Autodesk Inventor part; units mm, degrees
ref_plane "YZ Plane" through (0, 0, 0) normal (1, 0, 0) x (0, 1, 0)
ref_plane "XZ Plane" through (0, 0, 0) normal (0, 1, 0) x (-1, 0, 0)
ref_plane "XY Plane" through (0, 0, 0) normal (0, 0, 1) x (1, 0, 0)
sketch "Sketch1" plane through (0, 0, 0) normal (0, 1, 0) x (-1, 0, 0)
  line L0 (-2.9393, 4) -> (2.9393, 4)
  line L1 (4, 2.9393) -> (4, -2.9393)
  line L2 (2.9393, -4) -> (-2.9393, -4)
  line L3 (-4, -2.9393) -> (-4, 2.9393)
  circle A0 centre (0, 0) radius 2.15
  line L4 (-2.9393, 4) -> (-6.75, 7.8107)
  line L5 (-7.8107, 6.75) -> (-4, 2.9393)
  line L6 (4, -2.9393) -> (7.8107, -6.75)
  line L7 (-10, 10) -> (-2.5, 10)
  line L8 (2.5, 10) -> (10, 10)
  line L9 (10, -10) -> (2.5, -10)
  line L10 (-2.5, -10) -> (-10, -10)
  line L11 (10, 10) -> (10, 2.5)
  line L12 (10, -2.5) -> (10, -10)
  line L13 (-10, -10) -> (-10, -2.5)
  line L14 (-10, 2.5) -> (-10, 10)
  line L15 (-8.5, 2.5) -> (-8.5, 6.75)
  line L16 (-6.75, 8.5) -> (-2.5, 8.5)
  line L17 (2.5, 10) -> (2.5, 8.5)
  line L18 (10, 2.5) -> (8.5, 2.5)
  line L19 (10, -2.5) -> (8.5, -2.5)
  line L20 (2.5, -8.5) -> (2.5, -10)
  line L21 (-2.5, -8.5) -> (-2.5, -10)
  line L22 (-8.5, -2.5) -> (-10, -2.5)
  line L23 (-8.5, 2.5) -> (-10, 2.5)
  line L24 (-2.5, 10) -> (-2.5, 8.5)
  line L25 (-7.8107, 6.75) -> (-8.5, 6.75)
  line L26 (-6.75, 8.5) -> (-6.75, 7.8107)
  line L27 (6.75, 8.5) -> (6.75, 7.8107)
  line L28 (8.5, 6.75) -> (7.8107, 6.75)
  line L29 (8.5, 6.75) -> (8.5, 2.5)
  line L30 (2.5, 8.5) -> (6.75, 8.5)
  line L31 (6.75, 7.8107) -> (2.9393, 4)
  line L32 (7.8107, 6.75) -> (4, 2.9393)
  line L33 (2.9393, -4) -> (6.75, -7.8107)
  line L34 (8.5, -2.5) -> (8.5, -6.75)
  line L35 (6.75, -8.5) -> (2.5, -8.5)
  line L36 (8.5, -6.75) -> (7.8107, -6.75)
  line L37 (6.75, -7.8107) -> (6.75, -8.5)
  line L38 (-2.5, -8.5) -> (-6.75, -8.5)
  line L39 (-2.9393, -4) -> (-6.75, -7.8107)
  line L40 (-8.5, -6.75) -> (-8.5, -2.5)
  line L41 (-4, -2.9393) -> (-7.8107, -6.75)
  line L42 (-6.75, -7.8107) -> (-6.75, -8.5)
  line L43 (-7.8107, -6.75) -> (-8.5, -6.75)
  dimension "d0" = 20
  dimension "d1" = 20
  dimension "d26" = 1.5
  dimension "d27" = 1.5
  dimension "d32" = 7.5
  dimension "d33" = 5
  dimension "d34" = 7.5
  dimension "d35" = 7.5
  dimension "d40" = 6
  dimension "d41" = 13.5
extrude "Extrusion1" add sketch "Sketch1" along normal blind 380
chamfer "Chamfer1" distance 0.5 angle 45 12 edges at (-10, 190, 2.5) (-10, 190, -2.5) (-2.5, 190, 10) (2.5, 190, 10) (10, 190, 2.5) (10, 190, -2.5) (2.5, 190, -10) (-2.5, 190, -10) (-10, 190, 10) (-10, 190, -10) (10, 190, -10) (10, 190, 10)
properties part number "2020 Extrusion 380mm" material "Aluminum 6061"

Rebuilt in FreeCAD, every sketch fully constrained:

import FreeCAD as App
import Part
import Sketcher

V = App.Vector
Q = App.Units.Quantity


def edges_at(feature, points):
    """Names of the edges that pass closest to the given points."""
    edges = feature.Shape.Edges
    near = lambda p: min(range(len(edges)), key=lambda i: edges[i].distToShape(Part.Vertex(*p))[0])
    return sorted({f"Edge{near(p) + 1}" for p in points})

doc = App.newDocument("Part")
body = doc.addObject("PartDesign::Body", "Body")

# Sketch on XZ plane
sketch1 = body.newObject("Sketcher::SketchObject", "Sketch")
sketch1.AttachmentSupport = (doc.getObject("XZ_Plane"), [""])
sketch1.MapMode = "FlatFace"
sketch1.addGeometry(Part.LineSegment(V(-2.9, 4, 0), V(2.9, 4, 0)), False)
sketch1.addGeometry(Part.LineSegment(V(2.9, 4, 0), V(6.8, 7.8, 0)), False)
sketch1.addGeometry(Part.LineSegment(V(6.8, 7.8, 0), V(6.8, 8.5, 0)), False)
sketch1.addGeometry(Part.LineSegment(V(6.8, 8.5, 0), V(2.5, 8.5, 0)), False)
sketch1.addGeometry(Part.LineSegment(V(2.5, 8.5, 0), V(2.5, 10, 0)), False)
sketch1.addGeometry(Part.LineSegment(V(2.5, 10, 0), V(10, 10, 0)), False)
sketch1.addGeometry(Part.LineSegment(V(10, 10, 0), V(10, 2.5, 0)), False)
sketch1.addGeometry(Part.LineSegment(V(10, 2.5, 0), V(8.5, 2.5, 0)), False)
sketch1.addGeometry(Part.LineSegment(V(8.5, 2.5, 0), V(8.5, 6.8, 0)), False)
sketch1.addGeometry(Part.LineSegment(V(8.5, 6.8, 0), V(7.8, 6.8, 0)), False)
sketch1.addGeometry(Part.LineSegment(V(7.8, 6.8, 0), V(4, 2.9, 0)), False)
sketch1.addGeometry(Part.LineSegment(V(4, 2.9, 0), V(4, -2.9, 0)), False)
sketch1.addGeometry(Part.LineSegment(V(4, -2.9, 0), V(7.8, -6.8, 0)), False)
sketch1.addGeometry(Part.LineSegment(V(7.8, -6.8, 0), V(8.5, -6.8, 0)), False)
sketch1.addGeometry(Part.LineSegment(V(8.5, -6.8, 0), V(8.5, -2.5, 0)), False)
sketch1.addGeometry(Part.LineSegment(V(8.5, -2.5, 0), V(10, -2.5, 0)), False)
sketch1.addGeometry(Part.LineSegment(V(10, -2.5, 0), V(10, -10, 0)), False)
sketch1.addGeometry(Part.LineSegment(V(10, -10, 0), V(2.5, -10, 0)), False)
sketch1.addGeometry(Part.LineSegment(V(2.5, -10, 0), V(2.5, -8.5, 0)), False)
sketch1.addGeometry(Part.LineSegment(V(2.5, -8.5, 0), V(6.8, -8.5, 0)), False)
sketch1.addGeometry(Part.LineSegment(V(6.8, -8.5, 0), V(6.8, -7.8, 0)), False)
sketch1.addGeometry(Part.LineSegment(V(6.8, -7.8, 0), V(2.9, -4, 0)), False)
sketch1.addGeometry(Part.LineSegment(V(2.9, -4, 0), V(-2.9, -4, 0)), False)
sketch1.addGeometry(Part.LineSegment(V(-2.9, -4, 0), V(-6.8, -7.8, 0)), False)
sketch1.addGeometry(Part.LineSegment(V(-6.8, -7.8, 0), V(-6.8, -8.5, 0)), False)
sketch1.addGeometry(Part.LineSegment(V(-6.8, -8.5, 0), V(-2.5, -8.5, 0)), False)
sketch1.addGeometry(Part.LineSegment(V(-2.5, -8.5, 0), V(-2.5, -10, 0)), False)
sketch1.addGeometry(Part.LineSegment(V(-2.5, -10, 0), V(-10, -10, 0)), False)
sketch1.addGeometry(Part.LineSegment(V(-10, -10, 0), V(-10, -2.5, 0)), False)
sketch1.addGeometry(Part.LineSegment(V(-10, -2.5, 0), V(-8.5, -2.5, 0)), False)
sketch1.addGeometry(Part.LineSegment(V(-8.5, -2.5, 0), V(-8.5, -6.8, 0)), False)
sketch1.addGeometry(Part.LineSegment(V(-8.5, -6.8, 0), V(-7.8, -6.8, 0)), False)
sketch1.addGeometry(Part.LineSegment(V(-7.8, -6.8, 0), V(-4, -2.9, 0)), False)
sketch1.addGeometry(Part.LineSegment(V(-4, -2.9, 0), V(-4, 2.9, 0)), False)
sketch1.addGeometry(Part.LineSegment(V(-4, 2.9, 0), V(-7.8, 6.8, 0)), False)
sketch1.addGeometry(Part.LineSegment(V(-7.8, 6.8, 0), V(-8.5, 6.8, 0)), False)
sketch1.addGeometry(Part.LineSegment(V(-8.5, 6.8, 0), V(-8.5, 2.5, 0)), False)
sketch1.addGeometry(Part.LineSegment(V(-8.5, 2.5, 0), V(-10, 2.5, 0)), False)
sketch1.addGeometry(Part.LineSegment(V(-10, 2.5, 0), V(-10, 10, 0)), False)
sketch1.addGeometry(Part.LineSegment(V(-10, 10, 0), V(-2.5, 10, 0)), False)
sketch1.addGeometry(Part.LineSegment(V(-2.5, 10, 0), V(-2.5, 8.5, 0)), False)
sketch1.addGeometry(Part.LineSegment(V(-2.5, 8.5, 0), V(-6.8, 8.5, 0)), False)
sketch1.addGeometry(Part.LineSegment(V(-6.8, 8.5, 0), V(-6.8, 7.8, 0)), False)
sketch1.addGeometry(Part.LineSegment(V(-6.8, 7.8, 0), V(-2.9, 4, 0)), False)
sketch1.addGeometry(Part.Circle(V(0, 0, 0), V(0, 0, 1), 2.1), False)
sketch1.addConstraint(Sketcher.Constraint("Coincident", 0, 2, 1, 1))
sketch1.addConstraint(Sketcher.Constraint("Coincident", 1, 2, 2, 1))
sketch1.addConstraint(Sketcher.Constraint("Coincident", 2, 2, 3, 1))
sketch1.addConstraint(Sketcher.Constraint("Coincident", 3, 2, 4, 1))
sketch1.addConstraint(Sketcher.Constraint("Coincident", 4, 2, 5, 1))
sketch1.addConstraint(Sketcher.Constraint("Coincident", 5, 2, 6, 1))
sketch1.addConstraint(Sketcher.Constraint("Coincident", 6, 2, 7, 1))
sketch1.addConstraint(Sketcher.Constraint("Coincident", 7, 2, 8, 1))
sketch1.addConstraint(Sketcher.Constraint("Coincident", 8, 2, 9, 1))
sketch1.addConstraint(Sketcher.Constraint("Coincident", 9, 2, 10, 1))
sketch1.addConstraint(Sketcher.Constraint("Coincident", 10, 2, 11, 1))
sketch1.addConstraint(Sketcher.Constraint("Coincident", 11, 2, 12, 1))
sketch1.addConstraint(Sketcher.Constraint("Coincident", 12, 2, 13, 1))
sketch1.addConstraint(Sketcher.Constraint("Coincident", 13, 2, 14, 1))
sketch1.addConstraint(Sketcher.Constraint("Coincident", 14, 2, 15, 1))
sketch1.addConstraint(Sketcher.Constraint("Coincident", 15, 2, 16, 1))
sketch1.addConstraint(Sketcher.Constraint("Coincident", 16, 2, 17, 1))
sketch1.addConstraint(Sketcher.Constraint("Coincident", 17, 2, 18, 1))
sketch1.addConstraint(Sketcher.Constraint("Coincident", 18, 2, 19, 1))
sketch1.addConstraint(Sketcher.Constraint("Coincident", 19, 2, 20, 1))
sketch1.addConstraint(Sketcher.Constraint("Coincident", 20, 2, 21, 1))
sketch1.addConstraint(Sketcher.Constraint("Coincident", 21, 2, 22, 1))
sketch1.addConstraint(Sketcher.Constraint("Coincident", 22, 2, 23, 1))
sketch1.addConstraint(Sketcher.Constraint("Coincident", 23, 2, 24, 1))
sketch1.addConstraint(Sketcher.Constraint("Coincident", 24, 2, 25, 1))
sketch1.addConstraint(Sketcher.Constraint("Coincident", 25, 2, 26, 1))
sketch1.addConstraint(Sketcher.Constraint("Coincident", 26, 2, 27, 1))
sketch1.addConstraint(Sketcher.Constraint("Coincident", 27, 2, 28, 1))
sketch1.addConstraint(Sketcher.Constraint("Coincident", 28, 2, 29, 1))
sketch1.addConstraint(Sketcher.Constraint("Coincident", 29, 2, 30, 1))
sketch1.addConstraint(Sketcher.Constraint("Coincident", 30, 2, 31, 1))
sketch1.addConstraint(Sketcher.Constraint("Coincident", 31, 2, 32, 1))
sketch1.addConstraint(Sketcher.Constraint("Coincident", 32, 2, 33, 1))
sketch1.addConstraint(Sketcher.Constraint("Coincident", 33, 2, 34, 1))
sketch1.addConstraint(Sketcher.Constraint("Coincident", 34, 2, 35, 1))
sketch1.addConstraint(Sketcher.Constraint("Coincident", 35, 2, 36, 1))
sketch1.addConstraint(Sketcher.Constraint("Coincident", 36, 2, 37, 1))
sketch1.addConstraint(Sketcher.Constraint("Coincident", 37, 2, 38, 1))
sketch1.addConstraint(Sketcher.Constraint("Coincident", 38, 2, 39, 1))
sketch1.addConstraint(Sketcher.Constraint("Coincident", 39, 2, 40, 1))
sketch1.addConstraint(Sketcher.Constraint("Coincident", 40, 2, 41, 1))
sketch1.addConstraint(Sketcher.Constraint("Coincident", 41, 2, 42, 1))
sketch1.addConstraint(Sketcher.Constraint("Coincident", 42, 2, 43, 1))
sketch1.addConstraint(Sketcher.Constraint("Coincident", 43, 2, 0, 1))
sketch1.addConstraint(Sketcher.Constraint("Horizontal", 0))
sketch1.addConstraint(Sketcher.Constraint("Vertical", 2))
sketch1.addConstraint(Sketcher.Constraint("Horizontal", 3))
sketch1.addConstraint(Sketcher.Constraint("Vertical", 4))
sketch1.addConstraint(Sketcher.Constraint("Horizontal", 5))
sketch1.addConstraint(Sketcher.Constraint("Vertical", 6))
sketch1.addConstraint(Sketcher.Constraint("Horizontal", 7))
sketch1.addConstraint(Sketcher.Constraint("Vertical", 8))
sketch1.addConstraint(Sketcher.Constraint("Horizontal", 9))
sketch1.addConstraint(Sketcher.Constraint("Vertical", 11))
sketch1.addConstraint(Sketcher.Constraint("Horizontal", 13))
sketch1.addConstraint(Sketcher.Constraint("Vertical", 14))
sketch1.addConstraint(Sketcher.Constraint("Horizontal", 15))
sketch1.addConstraint(Sketcher.Constraint("Vertical", 16))
sketch1.addConstraint(Sketcher.Constraint("Horizontal", 17))
sketch1.addConstraint(Sketcher.Constraint("Vertical", 18))
sketch1.addConstraint(Sketcher.Constraint("Horizontal", 19))
sketch1.addConstraint(Sketcher.Constraint("Vertical", 20))
sketch1.addConstraint(Sketcher.Constraint("Horizontal", 22))
sketch1.addConstraint(Sketcher.Constraint("Vertical", 24))
sketch1.addConstraint(Sketcher.Constraint("Horizontal", 25))
sketch1.addConstraint(Sketcher.Constraint("Vertical", 26))
sketch1.addConstraint(Sketcher.Constraint("Horizontal", 27))
sketch1.addConstraint(Sketcher.Constraint("Vertical", 28))
sketch1.addConstraint(Sketcher.Constraint("Horizontal", 29))
sketch1.addConstraint(Sketcher.Constraint("Vertical", 30))
sketch1.addConstraint(Sketcher.Constraint("Horizontal", 31))
sketch1.addConstraint(Sketcher.Constraint("Vertical", 33))
sketch1.addConstraint(Sketcher.Constraint("Horizontal", 35))
sketch1.addConstraint(Sketcher.Constraint("Vertical", 36))
sketch1.addConstraint(Sketcher.Constraint("Horizontal", 37))
sketch1.addConstraint(Sketcher.Constraint("Vertical", 38))
sketch1.addConstraint(Sketcher.Constraint("Horizontal", 39))
sketch1.addConstraint(Sketcher.Constraint("Vertical", 40))
sketch1.addConstraint(Sketcher.Constraint("Horizontal", 41))
sketch1.addConstraint(Sketcher.Constraint("Vertical", 42))
sketch1.addConstraint(Sketcher.Constraint("Coincident", 44, 3, -1, 1))
sketch1.addConstraint(Sketcher.Constraint("Symmetric", 0, 2, 22, 2, -1, 1))
sketch1.addConstraint(Sketcher.Constraint("Symmetric", 1, 2, 23, 2, -1, 1))
sketch1.addConstraint(Sketcher.Constraint("Symmetric", 3, 2, 25, 2, -1, 1))
sketch1.addConstraint(Sketcher.Constraint("Symmetric", 5, 2, 27, 2, -1, 1))
sketch1.addConstraint(Sketcher.Constraint("Symmetric", 7, 2, 29, 2, -1, 1))
sketch1.addConstraint(Sketcher.Constraint("Symmetric", 9, 2, 31, 2, -1, 1))
sketch1.addConstraint(Sketcher.Constraint("Symmetric", 10, 2, 32, 2, -1, 1))
sketch1.addConstraint(Sketcher.Constraint("Symmetric", 12, 2, 34, 2, -1, 1))
sketch1.addConstraint(Sketcher.Constraint("Symmetric", 14, 2, 36, 2, -1, 1))
sketch1.addConstraint(Sketcher.Constraint("Symmetric", 16, 2, 38, 2, -1, 1))
sketch1.addConstraint(Sketcher.Constraint("Symmetric", 18, 2, 40, 2, -1, 1))
sketch1.addConstraint(Sketcher.Constraint("Symmetric", 20, 2, 42, 2, -1, 1))
sketch1.addConstraint(Sketcher.Constraint("Symmetric", 20, 2, 23, 2, -2))
sketch1.addConstraint(Sketcher.Constraint("Symmetric", 18, 2, 25, 2, -2))
sketch1.addConstraint(Sketcher.Constraint("Symmetric", 16, 2, 27, 2, -2))
sketch1.addConstraint(Sketcher.Constraint("Symmetric", 14, 2, 29, 2, -2))
sketch1.addConstraint(Sketcher.Constraint("Symmetric", 12, 2, 31, 2, -2))
sketch1.addConstraint(Sketcher.Constraint("Parallel", 1, 10))
sketch1.addConstraint(Sketcher.Constraint("Perpendicular", 10, 12))
sketch1.addConstraint(Sketcher.Constraint("Parallel", 12, 21))
sketch1.addConstraint(Sketcher.Constraint("Perpendicular", 32, 34))
sketch1.addConstraint(Sketcher.Constraint("Parallel", 34, 43))
sketch1.addConstraint(Sketcher.Constraint("Horizontal", 11, 2, 32, 2))
sketch1.addConstraint(Sketcher.Constraint("Equal", 35, 2))
sketch1.addConstraint(Sketcher.Constraint("Equal", 37, 4))
sketch1.addConstraint(Sketcher.Constraint("Equal", 39, 6))
sketch1.addConstraint(Sketcher.Constraint("Equal", 41, 8))
sketch1.addConstraint(Sketcher.Constraint("Equal", 22, 11))
sketch1.addConstraint(Sketcher.Constraint("Equal", 1, 10))
sketch1.addConstraint(Sketcher.Constraint("DistanceX", 5, 1, 5, 2, Q("7.5 mm")))
sketch1.addConstraint(Sketcher.Constraint("DistanceX", 7, 2, 7, 1, Q("1.5 mm")))
sketch1.addConstraint(Sketcher.Constraint("DistanceY", 0, 2, 4, 2, Q("6 mm")))
sketch1.addConstraint(Sketcher.Constraint("DistanceY", 14, 2, 7, 2, Q("5 mm")))
sketch1.addConstraint(Sketcher.Constraint("Diameter", 44, Q("4.3 mm")))
sketch1.addConstraint(Sketcher.Constraint("DistanceX", 3, 2, 3, 1, Q("4.25 mm")))
sketch1.addConstraint(Sketcher.Constraint("DistanceX", 0, 1, 0, 2, Q("5.8786 mm")))
pad1 = body.newObject("PartDesign::Pad", "Pad")
pad1.Profile = sketch1
pad1.Length = 380
pad1.Reversed = True
doc.recompute()

chamfer = body.newObject("PartDesign::Chamfer", "Chamfer")
chamfer.Base = (pad1, edges_at(pad1, [
    (-10, 190, 2.5),
    (-10, 190, -2.5),
    (-2.5, 190, 10),
    (2.5, 190, 10),
    (10, 190, 2.5),
    (10, 190, -2.5),
    (2.5, 190, -10),
    (-2.5, 190, -10),
    (-10, 190, 10),
    (-10, 190, -10),
    (10, 190, -10),
    (10, 190, 10),
]))
chamfer.Size = 0.5

doc.recompute()
